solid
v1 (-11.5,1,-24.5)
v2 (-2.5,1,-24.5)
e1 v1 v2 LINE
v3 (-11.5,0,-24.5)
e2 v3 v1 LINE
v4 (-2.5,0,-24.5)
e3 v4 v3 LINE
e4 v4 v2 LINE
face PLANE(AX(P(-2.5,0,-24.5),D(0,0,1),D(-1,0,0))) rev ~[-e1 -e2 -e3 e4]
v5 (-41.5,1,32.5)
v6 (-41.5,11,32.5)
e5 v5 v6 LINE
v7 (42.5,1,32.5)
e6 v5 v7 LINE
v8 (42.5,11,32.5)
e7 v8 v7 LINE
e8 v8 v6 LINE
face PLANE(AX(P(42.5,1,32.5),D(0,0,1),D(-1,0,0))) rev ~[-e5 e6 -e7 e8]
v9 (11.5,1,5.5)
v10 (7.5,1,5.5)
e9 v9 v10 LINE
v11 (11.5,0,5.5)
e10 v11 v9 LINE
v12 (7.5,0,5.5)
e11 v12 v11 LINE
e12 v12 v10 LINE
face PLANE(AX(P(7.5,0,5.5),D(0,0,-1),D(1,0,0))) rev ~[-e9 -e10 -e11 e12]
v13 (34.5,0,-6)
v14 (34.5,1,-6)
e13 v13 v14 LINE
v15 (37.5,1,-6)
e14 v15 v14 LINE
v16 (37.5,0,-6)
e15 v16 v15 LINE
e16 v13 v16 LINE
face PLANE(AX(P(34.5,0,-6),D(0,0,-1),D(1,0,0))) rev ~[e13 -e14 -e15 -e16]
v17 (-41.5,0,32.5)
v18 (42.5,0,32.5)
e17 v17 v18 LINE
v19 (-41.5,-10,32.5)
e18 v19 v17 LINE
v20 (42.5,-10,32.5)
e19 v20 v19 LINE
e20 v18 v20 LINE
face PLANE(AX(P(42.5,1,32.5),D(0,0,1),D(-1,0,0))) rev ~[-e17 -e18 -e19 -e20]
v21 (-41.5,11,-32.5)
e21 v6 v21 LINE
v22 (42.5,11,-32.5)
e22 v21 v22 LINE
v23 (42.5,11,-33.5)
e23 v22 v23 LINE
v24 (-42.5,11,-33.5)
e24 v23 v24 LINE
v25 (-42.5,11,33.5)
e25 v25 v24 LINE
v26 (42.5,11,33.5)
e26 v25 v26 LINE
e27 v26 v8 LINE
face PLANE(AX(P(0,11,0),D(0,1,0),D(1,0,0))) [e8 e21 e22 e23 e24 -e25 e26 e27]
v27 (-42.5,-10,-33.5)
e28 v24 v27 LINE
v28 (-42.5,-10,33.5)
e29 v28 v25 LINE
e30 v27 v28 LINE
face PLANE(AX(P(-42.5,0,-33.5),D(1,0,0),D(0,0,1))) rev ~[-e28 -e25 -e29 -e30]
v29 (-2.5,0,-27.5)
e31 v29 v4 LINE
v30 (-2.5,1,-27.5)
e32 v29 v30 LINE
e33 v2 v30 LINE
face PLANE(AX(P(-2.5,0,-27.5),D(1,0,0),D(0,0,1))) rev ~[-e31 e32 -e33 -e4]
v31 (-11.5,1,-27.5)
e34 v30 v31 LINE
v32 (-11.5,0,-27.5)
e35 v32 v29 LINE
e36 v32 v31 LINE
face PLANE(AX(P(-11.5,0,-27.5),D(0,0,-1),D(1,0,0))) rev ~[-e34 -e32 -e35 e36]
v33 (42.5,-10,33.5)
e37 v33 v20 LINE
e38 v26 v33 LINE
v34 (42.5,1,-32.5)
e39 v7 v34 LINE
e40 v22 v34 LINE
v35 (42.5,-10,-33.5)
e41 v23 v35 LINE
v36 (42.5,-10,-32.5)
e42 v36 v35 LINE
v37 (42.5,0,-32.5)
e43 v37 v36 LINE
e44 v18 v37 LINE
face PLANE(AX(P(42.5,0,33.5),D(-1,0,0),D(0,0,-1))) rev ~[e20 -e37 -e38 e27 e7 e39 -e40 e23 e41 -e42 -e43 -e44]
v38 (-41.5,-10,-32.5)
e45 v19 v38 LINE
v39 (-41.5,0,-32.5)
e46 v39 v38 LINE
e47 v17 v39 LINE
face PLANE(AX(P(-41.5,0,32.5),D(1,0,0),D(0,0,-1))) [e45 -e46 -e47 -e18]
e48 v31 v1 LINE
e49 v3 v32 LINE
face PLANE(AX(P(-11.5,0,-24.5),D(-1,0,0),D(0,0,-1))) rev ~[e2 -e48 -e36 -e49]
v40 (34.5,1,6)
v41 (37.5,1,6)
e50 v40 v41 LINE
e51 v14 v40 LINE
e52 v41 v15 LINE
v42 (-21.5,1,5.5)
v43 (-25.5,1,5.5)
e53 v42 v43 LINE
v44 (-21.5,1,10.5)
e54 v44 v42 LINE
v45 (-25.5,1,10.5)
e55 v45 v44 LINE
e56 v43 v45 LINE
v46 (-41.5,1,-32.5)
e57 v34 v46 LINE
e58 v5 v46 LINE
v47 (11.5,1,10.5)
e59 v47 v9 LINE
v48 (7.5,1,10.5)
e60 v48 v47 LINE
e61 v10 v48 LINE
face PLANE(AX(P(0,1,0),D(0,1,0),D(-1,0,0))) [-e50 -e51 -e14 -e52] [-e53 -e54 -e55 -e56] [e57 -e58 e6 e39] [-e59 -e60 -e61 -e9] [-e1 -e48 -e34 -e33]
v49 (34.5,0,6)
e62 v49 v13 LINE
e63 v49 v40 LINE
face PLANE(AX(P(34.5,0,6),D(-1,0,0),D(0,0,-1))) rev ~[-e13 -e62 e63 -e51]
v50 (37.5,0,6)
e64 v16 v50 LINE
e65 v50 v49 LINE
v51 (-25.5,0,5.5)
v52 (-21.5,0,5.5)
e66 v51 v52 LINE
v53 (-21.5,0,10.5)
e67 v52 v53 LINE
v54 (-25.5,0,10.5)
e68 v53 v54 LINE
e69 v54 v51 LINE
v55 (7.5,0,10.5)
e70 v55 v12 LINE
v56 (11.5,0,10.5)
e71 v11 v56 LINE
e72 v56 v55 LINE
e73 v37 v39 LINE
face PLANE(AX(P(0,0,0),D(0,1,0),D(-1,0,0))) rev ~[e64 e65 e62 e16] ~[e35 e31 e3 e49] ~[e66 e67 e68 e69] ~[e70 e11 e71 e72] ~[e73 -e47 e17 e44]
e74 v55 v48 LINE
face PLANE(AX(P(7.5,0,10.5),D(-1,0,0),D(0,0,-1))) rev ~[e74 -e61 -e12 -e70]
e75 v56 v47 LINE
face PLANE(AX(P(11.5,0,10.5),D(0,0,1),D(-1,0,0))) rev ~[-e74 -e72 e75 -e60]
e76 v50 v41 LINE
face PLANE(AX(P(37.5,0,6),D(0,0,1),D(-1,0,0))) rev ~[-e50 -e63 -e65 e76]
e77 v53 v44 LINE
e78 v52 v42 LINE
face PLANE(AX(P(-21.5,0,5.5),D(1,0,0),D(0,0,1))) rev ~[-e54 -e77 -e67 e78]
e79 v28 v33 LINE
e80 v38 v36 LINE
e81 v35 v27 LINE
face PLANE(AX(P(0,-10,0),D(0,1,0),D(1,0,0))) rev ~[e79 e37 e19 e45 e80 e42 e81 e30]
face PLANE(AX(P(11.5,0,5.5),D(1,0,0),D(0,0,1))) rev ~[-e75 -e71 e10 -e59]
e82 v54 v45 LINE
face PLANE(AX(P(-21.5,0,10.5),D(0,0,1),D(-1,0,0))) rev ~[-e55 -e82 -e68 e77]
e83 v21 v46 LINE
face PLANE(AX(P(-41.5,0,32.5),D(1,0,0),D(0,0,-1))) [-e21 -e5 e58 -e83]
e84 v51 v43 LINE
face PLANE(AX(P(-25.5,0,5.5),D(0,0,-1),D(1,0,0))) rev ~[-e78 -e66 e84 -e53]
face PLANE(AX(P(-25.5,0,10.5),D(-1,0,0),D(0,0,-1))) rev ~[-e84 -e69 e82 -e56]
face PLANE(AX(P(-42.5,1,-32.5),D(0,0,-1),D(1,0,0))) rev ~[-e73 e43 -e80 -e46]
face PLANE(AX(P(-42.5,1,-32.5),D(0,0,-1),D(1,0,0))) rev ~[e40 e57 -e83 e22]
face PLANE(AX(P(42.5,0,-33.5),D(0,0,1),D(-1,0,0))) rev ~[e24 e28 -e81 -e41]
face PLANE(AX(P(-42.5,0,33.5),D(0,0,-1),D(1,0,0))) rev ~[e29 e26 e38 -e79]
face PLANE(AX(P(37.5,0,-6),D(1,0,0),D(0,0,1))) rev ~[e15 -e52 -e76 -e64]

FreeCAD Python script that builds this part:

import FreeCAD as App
import Part
import Sketcher
from FreeCAD import Vector
Q = App.Units.Quantity


def add_polygon(sketch, points):
    """Adds a closed chain of lines whose ends are joined by coincident constraints."""
    first, n = sketch.GeometryCount, len(points)
    for a, b in zip(points, points[1:] + points[:1]):
        sketch.addGeometry(Part.LineSegment(App.Vector(*a, 0), App.Vector(*b, 0)), False)
    for i in range(n):
        sketch.addConstraint(Sketcher.Constraint("Coincident", first + i, 2, first + (i + 1) % n, 1))

doc = App.newDocument("Part")
params = doc.addObject("Spreadsheet::Sheet", "Params")
for row, (alias, value) in enumerate([
    ("sketch1_width", "85 mm"),
    ("sketch1_height", "67 mm"),
    ("pad1_length", "1 mm"),
    ("sketch2_height", "1 mm"),
    ("sketch2_width", "85 mm"),
    ("pad2_length", "10 mm"),
    ("pad2_length2", "11 mm"),
    ("sketch3_width", "1 mm"),
    ("sketch3_height", "65 mm"),
    ("pad3_length", "10 mm"),
    ("pad3_length2", "11 mm"),
    ("sketch4_width", "9 mm"),
    ("sketch4_width2", "3 mm"),
    ("sketch4_width3", "4 mm"),
    ("sketch4_height", "12 mm"),
    ("sketch4_height2", "5 mm"),
    ("pocket1_length", "10 mm"),
], start=1):
    params.set(f"A{row}", alias)
    params.set(f"B{row}", "=" + value)
    params.setAlias(f"B{row}", alias)

body = doc.addObject("PartDesign::Body", "Body")

sketch1 = body.newObject("Sketcher::SketchObject", "Sketch")
sketch1.AttachmentSupport = (doc.getObject("XZ_Plane"), [""])
sketch1.MapMode = "FlatFace"
add_polygon(sketch1, [(-42, -34), (-42, 34), (42, 34), (42, -34)])
sketch1.addConstraint(Sketcher.Constraint("Vertical", 0))
sketch1.addConstraint(Sketcher.Constraint("Horizontal", 1))
sketch1.addConstraint(Sketcher.Constraint("Vertical", 2))
sketch1.addConstraint(Sketcher.Constraint("Horizontal", 3))
sketch1.addConstraint(Sketcher.Constraint("Symmetric", 0, 2, 2, 2, -1, 1))
sketch1.addConstraint(Sketcher.Constraint("DistanceX", 1, 1, 1, 2, Q("85 mm")))
sketch1.addConstraint(Sketcher.Constraint("DistanceY", 0, 1, 0, 2, Q("67 mm")))
sketch1.setExpression("Constraints[9]", "Params.sketch1_width")
sketch1.setExpression("Constraints[10]", "Params.sketch1_height")
pad1 = body.newObject("PartDesign::Pad", "Pad")
pad1.Profile = sketch1
pad1.setExpression("Length", "Params.pad1_length")
pad1.Reversed = True

sketch2 = body.newObject("Sketcher::SketchObject", "Sketch001")
sketch2.AttachmentSupport = (doc.getObject("XZ_Plane"), [""])
sketch2.MapMode = "FlatFace"
sketch2.AttachmentOffset = App.Placement(Vector(0, 0, -1), App.Rotation())
add_polygon(sketch2, [(42.5, -33.5), (-42.5, -33.5), (-42.5, -32.5), (42.5, -32.5)])
add_polygon(sketch2, [(42.5, 32.5), (-42.5, 32.5), (-42.5, 33.5), (42.5, 33.5)])
sketch2.addConstraint(Sketcher.Constraint("Horizontal", 0))
sketch2.addConstraint(Sketcher.Constraint("Vertical", 1))
sketch2.addConstraint(Sketcher.Constraint("Horizontal", 2))
sketch2.addConstraint(Sketcher.Constraint("Vertical", 3))
sketch2.addConstraint(Sketcher.Constraint("Horizontal", 4))
sketch2.addConstraint(Sketcher.Constraint("Vertical", 5))
sketch2.addConstraint(Sketcher.Constraint("Horizontal", 6))
sketch2.addConstraint(Sketcher.Constraint("Vertical", 7))
sketch2.addConstraint(Sketcher.Constraint("Symmetric", 2, 2, 4, 2, -1, 1))
sketch2.addConstraint(Sketcher.Constraint("Symmetric", 0, 2, 6, 2, -1, 1))
sketch2.addConstraint(Sketcher.Constraint("Vertical", 1, 2, 4, 2))
sketch2.addConstraint(Sketcher.Constraint("DistanceY", 1, 1, 1, 2, Q("1 mm")))
sketch2.addConstraint(Sketcher.Constraint("DistanceX", 0, 2, 0, 1, Q("85 mm")))
sketch2.addConstraint(Sketcher.Constraint("DistanceY", 1, 2, 4, 2, Q("65 mm")))
sketch2.setExpression("Constraints[19]", "Params.sketch2_height")
sketch2.setExpression("Constraints[20]", "Params.sketch2_width")
pad2 = body.newObject("PartDesign::Pad", "Pad001")
pad2.Profile = sketch2
pad2.Type = "TwoLengths"
pad2.setExpression("Length", "Params.pad2_length")
pad2.setExpression("Length2", "Params.pad2_length2")
pad2.Reversed = True

sketch3 = body.newObject("Sketcher::SketchObject", "Sketch002")
sketch3.AttachmentSupport = (doc.getObject("XZ_Plane"), [""])
sketch3.MapMode = "FlatFace"
add_polygon(sketch3, [(-42.5, 32.5), (-42.5, -32.5), (-41.5, -32.5), (-41.5, 32.5)])
sketch3.addConstraint(Sketcher.Constraint("Vertical", 0))
sketch3.addConstraint(Sketcher.Constraint("Horizontal", 1))
sketch3.addConstraint(Sketcher.Constraint("Vertical", 2))
sketch3.addConstraint(Sketcher.Constraint("Horizontal", 3))
sketch3.addConstraint(Sketcher.Constraint("DistanceX", 1, 1, 1, 2, Q("1 mm")))
sketch3.addConstraint(Sketcher.Constraint("DistanceY", 0, 2, 0, 1, Q("65 mm")))
sketch3.addConstraint(Sketcher.Constraint("DistanceX", 0, 2, -1, 1, Q("42.5 mm")))
sketch3.addConstraint(Sketcher.Constraint("DistanceY", 0, 2, -1, 1, Q("32.5 mm")))
sketch3.setExpression("Constraints[8]", "Params.sketch3_width")
sketch3.setExpression("Constraints[9]", "Params.sketch3_height")
pad3 = body.newObject("PartDesign::Pad", "Pad002")
pad3.Profile = sketch3
pad3.Type = "TwoLengths"
pad3.setExpression("Length", "Params.pad3_length")
pad3.setExpression("Length2", "Params.pad3_length2")

sketch4 = body.newObject("Sketcher::SketchObject", "Sketch003")
sketch4.AttachmentSupport = (doc.getObject("XZ_Plane"), [""])
sketch4.MapMode = "FlatFace"
add_polygon(sketch4, [(-2.5, -27.5), (-2.5, -24.5), (-11.5, -24.5), (-11.5, -27.5)])
add_polygon(sketch4, [(37.5, -6), (37.5, 6), (34.5, 6), (34.5, -6)])
add_polygon(sketch4, [(11.5, 5.5), (11.5, 10.5), (7.5, 10.5), (7.5, 5.5)])
add_polygon(sketch4, [(-21.5, 5.5), (-21.5, 10.5), (-25.5, 10.5), (-25.5, 5.5)])
sketch4.addConstraint(Sketcher.Constraint("Vertical", 0))
sketch4.addConstraint(Sketcher.Constraint("Horizontal", 1))
sketch4.addConstraint(Sketcher.Constraint("Vertical", 2))
sketch4.addConstraint(Sketcher.Constraint("Horizontal", 3))
sketch4.addConstraint(Sketcher.Constraint("Vertical", 4))
sketch4.addConstraint(Sketcher.Constraint("Horizontal", 5))
sketch4.addConstraint(Sketcher.Constraint("Vertical", 6))
sketch4.addConstraint(Sketcher.Constraint("Horizontal", 7))
sketch4.addConstraint(Sketcher.Constraint("Vertical", 8))
sketch4.addConstraint(Sketcher.Constraint("Horizontal", 9))
sketch4.addConstraint(Sketcher.Constraint("Vertical", 10))
sketch4.addConstraint(Sketcher.Constraint("Horizontal", 11))
sketch4.addConstraint(Sketcher.Constraint("Vertical", 12))
sketch4.addConstraint(Sketcher.Constraint("Horizontal", 13))
sketch4.addConstraint(Sketcher.Constraint("Vertical", 14))
sketch4.addConstraint(Sketcher.Constraint("Horizontal", 15))
sketch4.addConstraint(Sketcher.Constraint("Horizontal", 9, 2, 12, 2))
sketch4.addConstraint(Sketcher.Constraint("Horizontal", 11, 2, 14, 2))
sketch4.addConstraint(Sketcher.Constraint("Equal", 11, 13))
sketch4.addConstraint(Sketcher.Constraint("Equal", 7, 0))
sketch4.addConstraint(Sketcher.Constraint("DistanceX", 1, 2, 1, 1, Q("9 mm")))
sketch4.addConstraint(Sketcher.Constraint("DistanceX", 5, 2, 5, 1, Q("3 mm")))
sketch4.addConstraint(Sketcher.Constraint("DistanceX", 9, 2, 9, 1, Q("4 mm")))
sketch4.addConstraint(Sketcher.Constraint("DistanceY", 4, 1, 4, 2, Q("12 mm")))
sketch4.addConstraint(Sketcher.Constraint("DistanceY", 8, 1, 8, 2, Q("5 mm")))
sketch4.addConstraint(Sketcher.Constraint("DistanceX", 9, 2, 4, 2, Q("30 mm")))
sketch4.addConstraint(Sketcher.Constraint("DistanceX", 12, 2, 1, 2, Q("10 mm")))
sketch4.addConstraint(Sketcher.Constraint("DistanceY", 1, 2, 14, 2, Q("30 mm")))
sketch4.addConstraint(Sketcher.Constraint("DistanceY", -1, 1, 4, 2, Q("6 mm")))
sketch4.addConstraint(Sketcher.Constraint("DistanceX", 0, 2, 4, 2, Q("40 mm")))
sketch4.addConstraint(Sketcher.Constraint("DistanceX", 0, 2, -1, 1, Q("2.5 mm")))
sketch4.addConstraint(Sketcher.Constraint("DistanceY", 0, 2, -1, 1, Q("24.5 mm")))
sketch4.setExpression("Constraints[36]", "Params.sketch4_width")
sketch4.setExpression("Constraints[37]", "Params.sketch4_width2")
sketch4.setExpression("Constraints[38]", "Params.sketch4_width3")
sketch4.setExpression("Constraints[39]", "Params.sketch4_height")
sketch4.setExpression("Constraints[40]", "Params.sketch4_height2")
pocket1 = body.newObject("PartDesign::Pocket", "Pocket")
pocket1.Profile = sketch4
pocket1.setExpression("Length", "Params.pocket1_length")

doc.recompute()
